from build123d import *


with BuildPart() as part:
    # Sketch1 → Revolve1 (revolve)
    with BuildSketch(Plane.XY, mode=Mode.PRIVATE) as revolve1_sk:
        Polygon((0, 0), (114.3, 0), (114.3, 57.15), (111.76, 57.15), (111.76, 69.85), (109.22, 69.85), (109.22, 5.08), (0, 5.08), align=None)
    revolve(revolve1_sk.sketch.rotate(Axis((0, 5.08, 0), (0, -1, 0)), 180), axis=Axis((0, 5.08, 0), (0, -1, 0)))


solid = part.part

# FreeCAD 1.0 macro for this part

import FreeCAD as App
import Part
import Sketcher

V = App.Vector
Q = App.Units.Quantity


def add_polygon(sketch, points):
    """Adds a closed chain of lines whose ends are joined by coincident constraints."""
    first, n = sketch.GeometryCount, len(points)
    for a, b in zip(points, points[1:] + points[:1]):
        sketch.addGeometry(Part.LineSegment(App.Vector(*a, 0), App.Vector(*b, 0)), False)
    for i in range(n):
        sketch.addConstraint(Sketcher.Constraint("Coincident", first + i, 2, first + (i + 1) % n, 1))

doc = App.newDocument("Part")
body = doc.addObject("PartDesign::Body", "Body")

sketch1 = doc.addObject("Sketcher::SketchObject", "Sketch")
body.addObject(sketch1)
sketch1.AttachmentSupport = (doc.XY_Plane, [""])
sketch1.MapMode = "FlatFace"
add_polygon(sketch1, [(0, 0), (114.3, 0), (114.3, 57.15), (111.76, 57.15), (111.76, 69.85), (109.22, 69.85), (109.22, 5.08), (0, 5.08)])
sketch1.addConstraint([
    Sketcher.Constraint("Horizontal", 0),
    Sketcher.Constraint("Vertical", 1),
    Sketcher.Constraint("Horizontal", 2),
    Sketcher.Constraint("Vertical", 3),
    Sketcher.Constraint("Horizontal", 4),
    Sketcher.Constraint("Vertical", 5),
    Sketcher.Constraint("Horizontal", 6),
    Sketcher.Constraint("Vertical", 7),
    Sketcher.Constraint("Coincident", 7, 2, -1, 1),
    Sketcher.Constraint("Equal", 2, 4),
    Sketcher.Constraint("DistanceX", 0, 1, 0, 2, Q("4.5 in")),
    Sketcher.Constraint("DistanceX", 2, 2, 2, 1, Q("0.1 in")),
    Sketcher.Constraint("DistanceY", 3, 1, 3, 2, Q("0.5 in")),
    Sketcher.Constraint("DistanceY", 7, 2, 7, 1, Q("0.2 in")),
    Sketcher.Constraint("DistanceY", 1, 1, 1, 2, Q("2.25 in")),
])
revolution = doc.addObject("PartDesign::Revolution", "Revolution")
body.addObject(revolution)
revolution.Profile = sketch1
revolution.ReferenceAxis = (sketch1, ["V_Axis"])
revolution.Angle = 360

doc.recompute()
